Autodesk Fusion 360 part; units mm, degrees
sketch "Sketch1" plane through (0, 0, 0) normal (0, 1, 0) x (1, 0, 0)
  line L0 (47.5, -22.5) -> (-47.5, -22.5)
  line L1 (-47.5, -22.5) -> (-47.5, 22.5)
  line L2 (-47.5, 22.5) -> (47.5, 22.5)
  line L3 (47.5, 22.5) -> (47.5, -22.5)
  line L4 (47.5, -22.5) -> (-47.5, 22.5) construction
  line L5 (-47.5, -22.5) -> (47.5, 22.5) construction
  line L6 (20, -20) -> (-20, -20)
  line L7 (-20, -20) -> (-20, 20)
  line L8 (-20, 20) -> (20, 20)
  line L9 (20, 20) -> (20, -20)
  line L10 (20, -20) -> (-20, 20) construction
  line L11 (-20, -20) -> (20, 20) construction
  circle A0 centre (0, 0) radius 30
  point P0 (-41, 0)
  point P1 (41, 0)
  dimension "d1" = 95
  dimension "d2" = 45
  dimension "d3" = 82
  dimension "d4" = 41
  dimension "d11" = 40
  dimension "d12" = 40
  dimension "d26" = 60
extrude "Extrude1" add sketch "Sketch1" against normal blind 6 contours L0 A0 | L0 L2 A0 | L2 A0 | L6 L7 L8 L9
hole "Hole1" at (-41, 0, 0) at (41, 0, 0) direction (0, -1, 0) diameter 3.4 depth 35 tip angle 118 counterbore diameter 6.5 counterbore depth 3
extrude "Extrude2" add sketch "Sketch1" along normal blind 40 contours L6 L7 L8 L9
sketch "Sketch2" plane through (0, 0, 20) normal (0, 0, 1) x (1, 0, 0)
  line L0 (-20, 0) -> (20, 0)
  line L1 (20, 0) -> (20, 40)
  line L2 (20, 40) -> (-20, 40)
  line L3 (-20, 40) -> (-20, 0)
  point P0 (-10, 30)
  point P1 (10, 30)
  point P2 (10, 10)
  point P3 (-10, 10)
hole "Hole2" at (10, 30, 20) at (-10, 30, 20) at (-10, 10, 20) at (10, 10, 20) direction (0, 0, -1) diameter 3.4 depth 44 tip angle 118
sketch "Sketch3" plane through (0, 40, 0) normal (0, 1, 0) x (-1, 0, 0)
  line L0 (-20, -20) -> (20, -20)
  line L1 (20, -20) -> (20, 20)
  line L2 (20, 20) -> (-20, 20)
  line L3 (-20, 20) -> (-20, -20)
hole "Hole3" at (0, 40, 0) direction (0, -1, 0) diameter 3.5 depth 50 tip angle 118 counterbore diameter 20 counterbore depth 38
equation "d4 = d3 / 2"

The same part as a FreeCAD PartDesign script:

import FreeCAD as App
import Part
import Sketcher

doc = App.newDocument("Part")
body = doc.addObject("PartDesign::Body", "Body")

# Sketch on XZ plane
sketch1 = body.newObject("Sketcher::SketchObject", "Sketch")
sketch1.AttachmentSupport = (doc.getObject("XZ_Plane"), [""])
sketch1.MapMode = "FlatFace"
sketch1.addGeometry(Part.Circle(App.Vector(0, 0, 0), App.Vector(0, 0, 1), 30), False)
sketch1.addConstraint(Sketcher.Constraint("Coincident", 0, 3, -1, 1))
sketch1.addConstraint(Sketcher.Constraint("Diameter", 0, 60.0))
pad1 = body.newObject("PartDesign::Pad", "Pad")
pad1.Profile = sketch1
pad1.Length = 6

# Sketch on XZ plane
sketch2 = body.newObject("Sketcher::SketchObject", "Sketch001")
sketch2.AttachmentSupport = (doc.getObject("XZ_Plane"), [""])
sketch2.MapMode = "FlatFace"
sketch2.addGeometry(Part.Circle(App.Vector(-41, 0, 0), App.Vector(0, 0, 1), 1.7), False)
sketch2.addGeometry(Part.Circle(App.Vector(41, 0, 0), App.Vector(0, 0, 1), 1.7), False)
sketch2.addConstraint(Sketcher.Constraint("Equal", 0, 1))
sketch2.addConstraint(Sketcher.Constraint("Symmetric", 0, 3, 1, 3, -1, 1))
sketch2.addConstraint(Sketcher.Constraint("PointOnObject", 0, 3, -1))
sketch2.addConstraint(Sketcher.Constraint("Diameter", 0, 3.4))
sketch2.addConstraint(Sketcher.Constraint("DistanceX", 0, 3, -1, 1, 41.0))
doc.recompute()
hole = body.newObject("PartDesign::Hole", "Hole")
hole.Profile = sketch2
hole.ThreadType = "None"
hole.Diameter = 3.4
hole.DepthType = "Dimension"
hole.Depth = 35
hole.DrillPoint = "Angled"
hole.DrillPointAngle = 118
hole.HoleCutType = "Counterbore"
hole.HoleCutDiameter = 6.5
hole.HoleCutDepth = 3
hole.Reversed = True

# Sketch on XZ plane
sketch3 = body.newObject("Sketcher::SketchObject", "Sketch002")
sketch3.AttachmentSupport = (doc.getObject("XZ_Plane"), [""])
sketch3.MapMode = "FlatFace"
sketch3.addGeometry(Part.LineSegment(App.Vector(-20, 20, 0), App.Vector(20, 20, 0)), False)
sketch3.addGeometry(Part.LineSegment(App.Vector(20, 20, 0), App.Vector(20, -20, 0)), False)
sketch3.addGeometry(Part.LineSegment(App.Vector(20, -20, 0), App.Vector(-20, -20, 0)), False)
sketch3.addGeometry(Part.LineSegment(App.Vector(-20, -20, 0), App.Vector(-20, 20, 0)), False)
sketch3.addConstraint(Sketcher.Constraint("Coincident", 0, 2, 1, 1))
sketch3.addConstraint(Sketcher.Constraint("Coincident", 1, 2, 2, 1))
sketch3.addConstraint(Sketcher.Constraint("Coincident", 2, 2, 3, 1))
sketch3.addConstraint(Sketcher.Constraint("Coincident", 3, 2, 0, 1))
sketch3.addConstraint(Sketcher.Constraint("Horizontal", 0))
sketch3.addConstraint(Sketcher.Constraint("Vertical", 1))
sketch3.addConstraint(Sketcher.Constraint("Horizontal", 2))
sketch3.addConstraint(Sketcher.Constraint("Vertical", 3))
sketch3.addConstraint(Sketcher.Constraint("Symmetric", 0, 2, 2, 2, -1, 1))
sketch3.addConstraint(Sketcher.Constraint("Equal", 2, 1))
sketch3.addConstraint(Sketcher.Constraint("DistanceX", 0, 1, 0, 2, 40.0))
pad2 = body.newObject("PartDesign::Pad", "Pad001")
pad2.Profile = sketch3
pad2.Length = 40
pad2.Reversed = True

# Sketch on XY plane
sketch4 = body.newObject("Sketcher::SketchObject", "Sketch003")
sketch4.AttachmentSupport = (doc.getObject("XY_Plane"), [""])
sketch4.MapMode = "FlatFace"
sketch4.AttachmentOffset = App.Placement(App.Vector(0, 0, 20), App.Rotation())
sketch4.addGeometry(Part.Circle(App.Vector(10, 30, 0), App.Vector(0, 0, 1), 1.7), False)
sketch4.addGeometry(Part.Circle(App.Vector(-10, 30, 0), App.Vector(0, 0, 1), 1.7), False)
sketch4.addGeometry(Part.Circle(App.Vector(-10, 10, 0), App.Vector(0, 0, 1), 1.7), False)
sketch4.addGeometry(Part.Circle(App.Vector(10, 10, 0), App.Vector(0, 0, 1), 1.7), False)
sketch4.addConstraint(Sketcher.Constraint("Equal", 0, 1))
sketch4.addConstraint(Sketcher.Constraint("Equal", 1, 2))
sketch4.addConstraint(Sketcher.Constraint("Equal", 2, 3))
sketch4.addConstraint(Sketcher.Constraint("Symmetric", 0, 3, 1, 3, -2))
sketch4.addConstraint(Sketcher.Constraint("Symmetric", 2, 3, 3, 3, -2))
sketch4.addConstraint(Sketcher.Constraint("Vertical", 1, 3, 2, 3))
sketch4.addConstraint(Sketcher.Constraint("Diameter", 0, 3.4))
sketch4.addConstraint(Sketcher.Constraint("DistanceX", -1, 1, 0, 3, 10.0))
sketch4.addConstraint(Sketcher.Constraint("DistanceY", -1, 1, 0, 3, 30.0))
sketch4.addConstraint(Sketcher.Constraint("DistanceY", -1, 1, 2, 3, 10.0))
doc.recompute()
hole2 = body.newObject("PartDesign::Hole", "Hole001")
hole2.Profile = sketch4
hole2.ThreadType = "None"
hole2.Diameter = 3.4
hole2.DepthType = "Dimension"
hole2.Depth = 44
hole2.DrillPoint = "Angled"
hole2.DrillPointAngle = 118

# Sketch on XZ plane
sketch5 = body.newObject("Sketcher::SketchObject", "Sketch004")
sketch5.AttachmentSupport = (doc.getObject("XZ_Plane"), [""])
sketch5.MapMode = "FlatFace"
sketch5.AttachmentOffset = App.Placement(App.Vector(0, 0, -40), App.Rotation())
sketch5.addGeometry(Part.Circle(App.Vector(0, 0, 0), App.Vector(0, 0, 1), 1.75), False)
sketch5.addConstraint(Sketcher.Constraint("Coincident", 0, 3, -1, 1))
sketch5.addConstraint(Sketcher.Constraint("Diameter", 0, 3.5))
doc.recompute()
hole3 = body.newObject("PartDesign::Hole", "Hole002")
hole3.Profile = sketch5
hole3.ThreadType = "None"
hole3.Diameter = 3.5
hole3.DepthType = "Dimension"
hole3.Depth = 50
hole3.DrillPoint = "Angled"
hole3.DrillPointAngle = 118
hole3.HoleCutType = "Counterbore"
hole3.HoleCutDiameter = 20
hole3.HoleCutDepth = 38
hole3.Reversed = True

doc.recompute()
